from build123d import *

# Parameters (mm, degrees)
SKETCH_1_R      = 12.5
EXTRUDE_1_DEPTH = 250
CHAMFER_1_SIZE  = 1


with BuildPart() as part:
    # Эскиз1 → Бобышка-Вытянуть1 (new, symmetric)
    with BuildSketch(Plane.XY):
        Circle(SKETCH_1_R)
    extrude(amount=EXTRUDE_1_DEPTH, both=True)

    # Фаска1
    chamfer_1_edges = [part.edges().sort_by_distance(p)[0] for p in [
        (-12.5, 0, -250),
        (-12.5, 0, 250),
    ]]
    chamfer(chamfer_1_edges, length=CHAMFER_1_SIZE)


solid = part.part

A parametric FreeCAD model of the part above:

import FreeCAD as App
import Part
import Sketcher

V = App.Vector


def edges_at(feature, points):
    """Names of the edges that pass closest to the given points."""
    edges = feature.Shape.Edges
    near = lambda p: min(range(len(edges)), key=lambda i: edges[i].distToShape(Part.Vertex(*p))[0])
    return sorted({f"Edge{near(p) + 1}" for p in points})

doc = App.newDocument("Part")
body = doc.addObject("PartDesign::Body", "Body")

# Sketch on XY plane
sketch1 = doc.addObject("Sketcher::SketchObject", "Sketch")
body.addObject(sketch1)
sketch1.AttachmentSupport = (doc.XY_Plane, [""])
sketch1.MapMode = "FlatFace"
sketch1.addGeometry(Part.Circle(V(0, 0, 0), V(0, 0, 1), 12.5), False)
sketch1.addConstraint([
    Sketcher.Constraint("Coincident", 0, 3, -1, 1),
    Sketcher.Constraint("Diameter", 0, 25.0),
])
pad1 = doc.addObject("PartDesign::Pad", "Pad")
body.addObject(pad1)
pad1.Profile = sketch1
pad1.Length = 500
pad1.Midplane = True
doc.recompute()

chamfer = doc.addObject("PartDesign::Chamfer", "Chamfer")
body.addObject(chamfer)
chamfer.Base = (pad1, edges_at(pad1, [(-12.5, 0, -250), (-12.5, 0, 250)]))
chamfer.Size = 1

doc.recompute()
